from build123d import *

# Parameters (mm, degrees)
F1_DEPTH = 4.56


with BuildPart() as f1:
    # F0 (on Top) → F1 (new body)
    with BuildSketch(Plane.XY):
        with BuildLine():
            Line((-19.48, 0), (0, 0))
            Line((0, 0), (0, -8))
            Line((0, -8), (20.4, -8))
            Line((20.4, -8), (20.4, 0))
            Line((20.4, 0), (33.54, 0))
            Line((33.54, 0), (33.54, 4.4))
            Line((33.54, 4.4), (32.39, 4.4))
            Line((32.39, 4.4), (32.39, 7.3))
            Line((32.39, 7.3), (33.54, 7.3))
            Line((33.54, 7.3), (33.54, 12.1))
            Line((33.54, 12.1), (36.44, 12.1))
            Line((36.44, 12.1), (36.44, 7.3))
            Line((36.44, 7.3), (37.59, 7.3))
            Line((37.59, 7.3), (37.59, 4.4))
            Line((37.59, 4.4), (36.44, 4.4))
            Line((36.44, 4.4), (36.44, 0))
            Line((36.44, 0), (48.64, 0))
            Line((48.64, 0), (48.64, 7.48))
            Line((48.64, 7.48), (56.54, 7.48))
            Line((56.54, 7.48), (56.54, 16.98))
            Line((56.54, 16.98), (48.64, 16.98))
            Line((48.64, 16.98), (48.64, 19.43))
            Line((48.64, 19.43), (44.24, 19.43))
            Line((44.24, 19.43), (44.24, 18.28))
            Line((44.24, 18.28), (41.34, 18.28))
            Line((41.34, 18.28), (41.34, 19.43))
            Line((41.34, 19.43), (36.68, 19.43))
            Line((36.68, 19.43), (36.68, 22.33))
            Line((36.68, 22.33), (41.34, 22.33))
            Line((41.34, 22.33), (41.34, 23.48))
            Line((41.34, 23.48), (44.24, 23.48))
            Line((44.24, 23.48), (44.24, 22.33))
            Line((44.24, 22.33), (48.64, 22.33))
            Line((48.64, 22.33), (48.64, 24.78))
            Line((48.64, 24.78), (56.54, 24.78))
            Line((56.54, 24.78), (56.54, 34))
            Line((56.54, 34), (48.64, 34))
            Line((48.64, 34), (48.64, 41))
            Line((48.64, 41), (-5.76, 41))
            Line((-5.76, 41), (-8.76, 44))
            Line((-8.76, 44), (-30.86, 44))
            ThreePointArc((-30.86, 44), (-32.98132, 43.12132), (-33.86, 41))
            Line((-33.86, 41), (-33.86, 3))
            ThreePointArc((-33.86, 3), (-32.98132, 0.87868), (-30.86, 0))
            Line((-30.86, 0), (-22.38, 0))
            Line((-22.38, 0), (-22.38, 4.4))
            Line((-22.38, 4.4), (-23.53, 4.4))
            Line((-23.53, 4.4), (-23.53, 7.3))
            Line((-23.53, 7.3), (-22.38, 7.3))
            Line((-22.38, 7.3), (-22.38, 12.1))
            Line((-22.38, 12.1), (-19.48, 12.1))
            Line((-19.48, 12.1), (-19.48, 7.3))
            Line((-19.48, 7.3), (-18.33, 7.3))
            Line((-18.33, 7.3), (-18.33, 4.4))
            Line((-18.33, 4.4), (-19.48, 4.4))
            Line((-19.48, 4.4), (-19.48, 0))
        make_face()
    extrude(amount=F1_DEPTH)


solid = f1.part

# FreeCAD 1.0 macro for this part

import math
import FreeCAD as App
import Part
import Sketcher
from FreeCAD import Vector
Q = App.Units.Quantity

doc = App.newDocument("Part")
body = doc.addObject("PartDesign::Body", "Body")

# Sketch on XY plane
sketch1 = body.newObject("Sketcher::SketchObject", "Sketch")
sketch1.AttachmentSupport = (doc.getObject("XY_Plane"), [""])
sketch1.MapMode = "FlatFace"
sketch1.addGeometry([
    Part.LineSegment(Vector(-19.48, 0, 0), Vector(0, 0, 0)),  # 0
    Part.LineSegment(Vector(0, 0, 0), Vector(0, -8, 0)),  # 1
    Part.LineSegment(Vector(0, -8, 0), Vector(20.4, -8, 0)),  # 2
    Part.LineSegment(Vector(20.4, -8, 0), Vector(20.4, 0, 0)),  # 3
    Part.LineSegment(Vector(20.4, 0, 0), Vector(33.54, 0, 0)),  # 4
    Part.LineSegment(Vector(33.54, 0, 0), Vector(33.54, 4.4, 0)),  # 5
    Part.LineSegment(Vector(33.54, 4.4, 0), Vector(32.39, 4.4, 0)),  # 6
    Part.LineSegment(Vector(32.39, 4.4, 0), Vector(32.39, 7.3, 0)),  # 7
    Part.LineSegment(Vector(32.39, 7.3, 0), Vector(33.54, 7.3, 0)),  # 8
    Part.LineSegment(Vector(33.54, 7.3, 0), Vector(33.54, 12.1, 0)),  # 9
    Part.LineSegment(Vector(33.54, 12.1, 0), Vector(36.44, 12.1, 0)),  # 10
    Part.LineSegment(Vector(36.44, 12.1, 0), Vector(36.44, 7.3, 0)),  # 11
    Part.LineSegment(Vector(36.44, 7.3, 0), Vector(37.59, 7.3, 0)),  # 12
    Part.LineSegment(Vector(37.59, 7.3, 0), Vector(37.59, 4.4, 0)),  # 13
    Part.LineSegment(Vector(37.59, 4.4, 0), Vector(36.44, 4.4, 0)),  # 14
    Part.LineSegment(Vector(36.44, 4.4, 0), Vector(36.44, 0, 0)),  # 15
    Part.LineSegment(Vector(36.44, 0, 0), Vector(48.64, 0, 0)),  # 16
    Part.LineSegment(Vector(48.64, 0, 0), Vector(48.64, 7.48, 0)),  # 17
    Part.LineSegment(Vector(48.64, 7.48, 0), Vector(56.54, 7.48, 0)),  # 18
    Part.LineSegment(Vector(56.54, 7.48, 0), Vector(56.54, 16.98, 0)),  # 19
    Part.LineSegment(Vector(56.54, 16.98, 0), Vector(48.64, 16.98, 0)),  # 20
    Part.LineSegment(Vector(48.64, 16.98, 0), Vector(48.64, 19.43, 0)),  # 21
    Part.LineSegment(Vector(48.64, 19.43, 0), Vector(44.24, 19.43, 0)),  # 22
    Part.LineSegment(Vector(44.24, 19.43, 0), Vector(44.24, 18.28, 0)),  # 23
    Part.LineSegment(Vector(44.24, 18.28, 0), Vector(41.34, 18.28, 0)),  # 24
    Part.LineSegment(Vector(41.34, 18.28, 0), Vector(41.34, 19.43, 0)),  # 25
    Part.LineSegment(Vector(41.34, 19.43, 0), Vector(36.68, 19.43, 0)),  # 26
    Part.LineSegment(Vector(36.68, 19.43, 0), Vector(36.68, 22.33, 0)),  # 27
    Part.LineSegment(Vector(36.68, 22.33, 0), Vector(41.34, 22.33, 0)),  # 28
    Part.LineSegment(Vector(41.34, 22.33, 0), Vector(41.34, 23.48, 0)),  # 29
    Part.LineSegment(Vector(41.34, 23.48, 0), Vector(44.24, 23.48, 0)),  # 30
    Part.LineSegment(Vector(44.24, 23.48, 0), Vector(44.24, 22.33, 0)),  # 31
    Part.LineSegment(Vector(44.24, 22.33, 0), Vector(48.64, 22.33, 0)),  # 32
    Part.LineSegment(Vector(48.64, 22.33, 0), Vector(48.64, 24.78, 0)),  # 33
    Part.LineSegment(Vector(48.64, 24.78, 0), Vector(56.54, 24.78, 0)),  # 34
    Part.LineSegment(Vector(56.54, 24.78, 0), Vector(56.54, 34, 0)),  # 35
    Part.LineSegment(Vector(56.54, 34, 0), Vector(48.64, 34, 0)),  # 36
    Part.LineSegment(Vector(48.64, 34, 0), Vector(48.64, 41, 0)),  # 37
    Part.LineSegment(Vector(48.64, 41, 0), Vector(-5.76, 41, 0)),  # 38
    Part.LineSegment(Vector(-5.76, 41, 0), Vector(-8.76, 44, 0)),  # 39
    Part.LineSegment(Vector(-8.76, 44, 0), Vector(-30.86, 44, 0)),  # 40
    Part.ArcOfCircle(Part.Circle(Vector(-30.859999, 40.999999, 0), Vector(0, 0, 1), 3.000001), math.radians(90.000022), math.radians(179.999978)),  # 41
    Part.LineSegment(Vector(-33.86, 41, 0), Vector(-33.86, 3, 0)),  # 42
    Part.ArcOfCircle(Part.Circle(Vector(-30.859999, 3.000001, 0), Vector(0, 0, 1), 3.000001), math.radians(-179.999978), math.radians(-90.000022)),  # 43
    Part.LineSegment(Vector(-30.86, 0, 0), Vector(-22.38, 0, 0)),  # 44
    Part.LineSegment(Vector(-22.38, 0, 0), Vector(-22.38, 4.4, 0)),  # 45
    Part.LineSegment(Vector(-22.38, 4.4, 0), Vector(-23.53, 4.4, 0)),  # 46
    Part.LineSegment(Vector(-23.53, 4.4, 0), Vector(-23.53, 7.3, 0)),  # 47
    Part.LineSegment(Vector(-23.53, 7.3, 0), Vector(-22.38, 7.3, 0)),  # 48
    Part.LineSegment(Vector(-22.38, 7.3, 0), Vector(-22.38, 12.1, 0)),  # 49
    Part.LineSegment(Vector(-22.38, 12.1, 0), Vector(-19.48, 12.1, 0)),  # 50
    Part.LineSegment(Vector(-19.48, 12.1, 0), Vector(-19.48, 7.3, 0)),  # 51
    Part.LineSegment(Vector(-19.48, 7.3, 0), Vector(-18.33, 7.3, 0)),  # 52
    Part.LineSegment(Vector(-18.33, 7.3, 0), Vector(-18.33, 4.4, 0)),  # 53
    Part.LineSegment(Vector(-18.33, 4.4, 0), Vector(-19.48, 4.4, 0)),  # 54
    Part.LineSegment(Vector(-19.48, 4.4, 0), Vector(-19.48, 0, 0)),  # 55
], False)
sketch1.addConstraint([
    Sketcher.Constraint("Coincident", 0, 2, 1, 1),
    Sketcher.Constraint("Coincident", 1, 2, 2, 1),
    Sketcher.Constraint("Coincident", 2, 2, 3, 1),
    Sketcher.Constraint("Coincident", 3, 2, 4, 1),
    Sketcher.Constraint("Coincident", 4, 2, 5, 1),
    Sketcher.Constraint("Coincident", 5, 2, 6, 1),
    Sketcher.Constraint("Coincident", 6, 2, 7, 1),
    Sketcher.Constraint("Coincident", 7, 2, 8, 1),
    Sketcher.Constraint("Coincident", 8, 2, 9, 1),
    Sketcher.Constraint("Coincident", 9, 2, 10, 1),
    Sketcher.Constraint("Coincident", 10, 2, 11, 1),
    Sketcher.Constraint("Coincident", 11, 2, 12, 1),
    Sketcher.Constraint("Coincident", 12, 2, 13, 1),
    Sketcher.Constraint("Coincident", 13, 2, 14, 1),
    Sketcher.Constraint("Coincident", 14, 2, 15, 1),
    Sketcher.Constraint("Coincident", 15, 2, 16, 1),
    Sketcher.Constraint("Coincident", 16, 2, 17, 1),
    Sketcher.Constraint("Coincident", 17, 2, 18, 1),
    Sketcher.Constraint("Coincident", 18, 2, 19, 1),
    Sketcher.Constraint("Coincident", 19, 2, 20, 1),
    Sketcher.Constraint("Coincident", 20, 2, 21, 1),
    Sketcher.Constraint("Coincident", 21, 2, 22, 1),
    Sketcher.Constraint("Coincident", 22, 2, 23, 1),
    Sketcher.Constraint("Coincident", 23, 2, 24, 1),
    Sketcher.Constraint("Coincident", 24, 2, 25, 1),
    Sketcher.Constraint("Coincident", 25, 2, 26, 1),
    Sketcher.Constraint("Coincident", 26, 2, 27, 1),
    Sketcher.Constraint("Coincident", 27, 2, 28, 1),
    Sketcher.Constraint("Coincident", 28, 2, 29, 1),
    Sketcher.Constraint("Coincident", 29, 2, 30, 1),
    Sketcher.Constraint("Coincident", 30, 2, 31, 1),
    Sketcher.Constraint("Coincident", 31, 2, 32, 1),
    Sketcher.Constraint("Coincident", 32, 2, 33, 1),
    Sketcher.Constraint("Coincident", 33, 2, 34, 1),
    Sketcher.Constraint("Coincident", 34, 2, 35, 1),
    Sketcher.Constraint("Coincident", 35, 2, 36, 1),
    Sketcher.Constraint("Coincident", 36, 2, 37, 1),
    Sketcher.Constraint("Coincident", 37, 2, 38, 1),
    Sketcher.Constraint("Coincident", 38, 2, 39, 1),
    Sketcher.Constraint("Coincident", 39, 2, 40, 1),
    Sketcher.Constraint("Tangent", 40, 2, 41, 1),
    Sketcher.Constraint("Tangent", 41, 2, 42, 1),
    Sketcher.Constraint("Tangent", 42, 2, 43, 1),
    Sketcher.Constraint("Tangent", 43, 2, 44, 1),
    Sketcher.Constraint("Coincident", 44, 2, 45, 1),
    Sketcher.Constraint("Coincident", 45, 2, 46, 1),
    Sketcher.Constraint("Coincident", 46, 2, 47, 1),
    Sketcher.Constraint("Coincident", 47, 2, 48, 1),
    Sketcher.Constraint("Coincident", 48, 2, 49, 1),
    Sketcher.Constraint("Coincident", 49, 2, 50, 1),
    Sketcher.Constraint("Coincident", 50, 2, 51, 1),
    Sketcher.Constraint("Coincident", 51, 2, 52, 1),
    Sketcher.Constraint("Coincident", 52, 2, 53, 1),
    Sketcher.Constraint("Coincident", 53, 2, 54, 1),
    Sketcher.Constraint("Coincident", 54, 2, 55, 1),
    Sketcher.Constraint("Coincident", 55, 2, 0, 1),
    Sketcher.Constraint("Horizontal", 0),
    Sketcher.Constraint("Vertical", 1),
    Sketcher.Constraint("Horizontal", 2),
    Sketcher.Constraint("Vertical", 3),
    Sketcher.Constraint("Horizontal", 4),
    Sketcher.Constraint("Vertical", 5),
    Sketcher.Constraint("Horizontal", 6),
    Sketcher.Constraint("Vertical", 7),
    Sketcher.Constraint("Horizontal", 8),
    Sketcher.Constraint("Vertical", 9),
    Sketcher.Constraint("Horizontal", 10),
    Sketcher.Constraint("Vertical", 11),
    Sketcher.Constraint("Horizontal", 12),
    Sketcher.Constraint("Vertical", 13),
    Sketcher.Constraint("Horizontal", 14),
    Sketcher.Constraint("Vertical", 15),
    Sketcher.Constraint("Horizontal", 16),
    Sketcher.Constraint("Vertical", 17),
    Sketcher.Constraint("Horizontal", 18),
    Sketcher.Constraint("Vertical", 19),
    Sketcher.Constraint("Horizontal", 20),
    Sketcher.Constraint("Vertical", 21),
    Sketcher.Constraint("Horizontal", 22),
    Sketcher.Constraint("Vertical", 23),
    Sketcher.Constraint("Horizontal", 24),
    Sketcher.Constraint("Vertical", 25),
    Sketcher.Constraint("Horizontal", 26),
    Sketcher.Constraint("Vertical", 27),
    Sketcher.Constraint("Horizontal", 28),
    Sketcher.Constraint("Vertical", 29),
    Sketcher.Constraint("Horizontal", 30),
    Sketcher.Constraint("Vertical", 31),
    Sketcher.Constraint("Horizontal", 32),
    Sketcher.Constraint("Vertical", 33),
    Sketcher.Constraint("Horizontal", 34),
    Sketcher.Constraint("Vertical", 35),
    Sketcher.Constraint("Horizontal", 36),
    Sketcher.Constraint("Vertical", 37),
    Sketcher.Constraint("Horizontal", 38),
    Sketcher.Constraint("Horizontal", 40),
    Sketcher.Constraint("Vertical", 42),
    Sketcher.Constraint("Horizontal", 44),
    Sketcher.Constraint("Vertical", 45),
    Sketcher.Constraint("Horizontal", 46),
    Sketcher.Constraint("Vertical", 47),
    Sketcher.Constraint("Horizontal", 48),
    Sketcher.Constraint("Vertical", 49),
    Sketcher.Constraint("Horizontal", 50),
    Sketcher.Constraint("Vertical", 51),
    Sketcher.Constraint("Horizontal", 52),
    Sketcher.Constraint("Vertical", 53),
    Sketcher.Constraint("Horizontal", 54),
    Sketcher.Constraint("Vertical", 55),
    Sketcher.Constraint("Coincident", 0, 2, -1, 1),
    Sketcher.Constraint("Equal", 41, 43),
    Sketcher.Constraint("PointOnObject", 3, 2, -1),
    Sketcher.Constraint("PointOnObject", 15, 2, -1),
    Sketcher.Constraint("PointOnObject", 43, 2, -1),
    Sketcher.Constraint("Horizontal", 8, 2, 11, 2),
    Sketcher.Constraint("Horizontal", 6, 2, 13, 2),
    Sketcher.Constraint("Horizontal", 22, 2, 25, 2),
    Sketcher.Constraint("Horizontal", 28, 2, 31, 2),
    Sketcher.Constraint("Horizontal", 41, 3, 37, 2),
    Sketcher.Constraint("Horizontal", 14, 2, 45, 2),
    Sketcher.Constraint("Horizontal", 12, 2, 47, 2),
    Sketcher.Constraint("Horizontal", 10, 2, 49, 2),
    Sketcher.Constraint("Horizontal", 48, 2, 51, 2),
    Sketcher.Constraint("Horizontal", 46, 2, 53, 2),
    Sketcher.Constraint("Vertical", 5, 2, 8, 2),
    Sketcher.Constraint("Vertical", 11, 2, 14, 2),
    Sketcher.Constraint("Vertical", 17, 2, 20, 2),
    Sketcher.Constraint("Vertical", 25, 2, 28, 2),
    Sketcher.Constraint("Vertical", 23, 2, 30, 2),
    Sketcher.Constraint("Vertical", 21, 2, 32, 2),
    Sketcher.Constraint("Vertical", 19, 2, 34, 2),
    Sketcher.Constraint("Vertical", 33, 2, 36, 2),
    Sketcher.Constraint("Vertical", 45, 2, 48, 2),
    Sketcher.Constraint("Vertical", 51, 2, 54, 2),
    Sketcher.Constraint("Equal", 8, 12),
    Sketcher.Constraint("Equal", 10, 24),
    Sketcher.Constraint("Equal", 14, 46),
    Sketcher.Constraint("Equal", 30, 50),
    Sketcher.Constraint("Equal", 48, 52),
    Sketcher.Constraint("Equal", 32, 5),
    Sketcher.Constraint("Equal", 50, 7),
    Sketcher.Constraint("Equal", 54, 23),
    Sketcher.Constraint("Equal", 13, 27),
    Sketcher.Constraint("Equal", 25, 29),
    Sketcher.Constraint("Equal", 21, 33),
    Sketcher.Constraint("Radius", 41, 3.000001),
    Sketcher.Constraint("DistanceY", 1, 2, 1, 1, 8.0),
    Sketcher.Constraint("DistanceY", 37, 1, 37, 2, 7.0),
    Sketcher.Constraint("DistanceY", 42, 2, 42, 1, 38.0),
    Sketcher.Constraint("Angle", 39, Q("135 deg")),
    Sketcher.Constraint("DistanceX", 2, 1, 2, 2, 20.4),
    Sketcher.Constraint("DistanceX", 10, 1, 10, 2, 2.9),
    Sketcher.Constraint("DistanceX", 16, 1, 16, 2, 12.2),
    Sketcher.Constraint("DistanceX", 18, 1, 18, 2, 7.9),
    Sketcher.Constraint("DistanceX", 22, 2, 22, 1, 4.4),
    Sketcher.Constraint("DistanceX", 38, 2, 38, 1, 54.4),
    Sketcher.Constraint("DistanceX", 40, 2, 40, 1, 22.1),
    Sketcher.Constraint("DistanceY", 9, 1, 9, 2, 4.8),
    Sketcher.Constraint("DistanceY", 19, 1, 19, 2, 9.5),
    Sketcher.Constraint("DistanceX", 0, 1, 0, 2, 19.48),
    Sketcher.Constraint("DistanceX", 4, 1, 4, 2, 13.14),
    Sketcher.Constraint("DistanceX", 6, 2, 6, 1, 1.15),
    Sketcher.Constraint("DistanceX", 26, 2, 26, 1, 4.66),
    Sketcher.Constraint("DistanceY", 17, 1, 17, 2, 7.48),
    Sketcher.Constraint("DistanceY", 21, 1, 21, 2, 2.45),
])
pad1 = body.newObject("PartDesign::Pad", "Pad")
pad1.Profile = sketch1
pad1.Length = 4.56

doc.recompute()
